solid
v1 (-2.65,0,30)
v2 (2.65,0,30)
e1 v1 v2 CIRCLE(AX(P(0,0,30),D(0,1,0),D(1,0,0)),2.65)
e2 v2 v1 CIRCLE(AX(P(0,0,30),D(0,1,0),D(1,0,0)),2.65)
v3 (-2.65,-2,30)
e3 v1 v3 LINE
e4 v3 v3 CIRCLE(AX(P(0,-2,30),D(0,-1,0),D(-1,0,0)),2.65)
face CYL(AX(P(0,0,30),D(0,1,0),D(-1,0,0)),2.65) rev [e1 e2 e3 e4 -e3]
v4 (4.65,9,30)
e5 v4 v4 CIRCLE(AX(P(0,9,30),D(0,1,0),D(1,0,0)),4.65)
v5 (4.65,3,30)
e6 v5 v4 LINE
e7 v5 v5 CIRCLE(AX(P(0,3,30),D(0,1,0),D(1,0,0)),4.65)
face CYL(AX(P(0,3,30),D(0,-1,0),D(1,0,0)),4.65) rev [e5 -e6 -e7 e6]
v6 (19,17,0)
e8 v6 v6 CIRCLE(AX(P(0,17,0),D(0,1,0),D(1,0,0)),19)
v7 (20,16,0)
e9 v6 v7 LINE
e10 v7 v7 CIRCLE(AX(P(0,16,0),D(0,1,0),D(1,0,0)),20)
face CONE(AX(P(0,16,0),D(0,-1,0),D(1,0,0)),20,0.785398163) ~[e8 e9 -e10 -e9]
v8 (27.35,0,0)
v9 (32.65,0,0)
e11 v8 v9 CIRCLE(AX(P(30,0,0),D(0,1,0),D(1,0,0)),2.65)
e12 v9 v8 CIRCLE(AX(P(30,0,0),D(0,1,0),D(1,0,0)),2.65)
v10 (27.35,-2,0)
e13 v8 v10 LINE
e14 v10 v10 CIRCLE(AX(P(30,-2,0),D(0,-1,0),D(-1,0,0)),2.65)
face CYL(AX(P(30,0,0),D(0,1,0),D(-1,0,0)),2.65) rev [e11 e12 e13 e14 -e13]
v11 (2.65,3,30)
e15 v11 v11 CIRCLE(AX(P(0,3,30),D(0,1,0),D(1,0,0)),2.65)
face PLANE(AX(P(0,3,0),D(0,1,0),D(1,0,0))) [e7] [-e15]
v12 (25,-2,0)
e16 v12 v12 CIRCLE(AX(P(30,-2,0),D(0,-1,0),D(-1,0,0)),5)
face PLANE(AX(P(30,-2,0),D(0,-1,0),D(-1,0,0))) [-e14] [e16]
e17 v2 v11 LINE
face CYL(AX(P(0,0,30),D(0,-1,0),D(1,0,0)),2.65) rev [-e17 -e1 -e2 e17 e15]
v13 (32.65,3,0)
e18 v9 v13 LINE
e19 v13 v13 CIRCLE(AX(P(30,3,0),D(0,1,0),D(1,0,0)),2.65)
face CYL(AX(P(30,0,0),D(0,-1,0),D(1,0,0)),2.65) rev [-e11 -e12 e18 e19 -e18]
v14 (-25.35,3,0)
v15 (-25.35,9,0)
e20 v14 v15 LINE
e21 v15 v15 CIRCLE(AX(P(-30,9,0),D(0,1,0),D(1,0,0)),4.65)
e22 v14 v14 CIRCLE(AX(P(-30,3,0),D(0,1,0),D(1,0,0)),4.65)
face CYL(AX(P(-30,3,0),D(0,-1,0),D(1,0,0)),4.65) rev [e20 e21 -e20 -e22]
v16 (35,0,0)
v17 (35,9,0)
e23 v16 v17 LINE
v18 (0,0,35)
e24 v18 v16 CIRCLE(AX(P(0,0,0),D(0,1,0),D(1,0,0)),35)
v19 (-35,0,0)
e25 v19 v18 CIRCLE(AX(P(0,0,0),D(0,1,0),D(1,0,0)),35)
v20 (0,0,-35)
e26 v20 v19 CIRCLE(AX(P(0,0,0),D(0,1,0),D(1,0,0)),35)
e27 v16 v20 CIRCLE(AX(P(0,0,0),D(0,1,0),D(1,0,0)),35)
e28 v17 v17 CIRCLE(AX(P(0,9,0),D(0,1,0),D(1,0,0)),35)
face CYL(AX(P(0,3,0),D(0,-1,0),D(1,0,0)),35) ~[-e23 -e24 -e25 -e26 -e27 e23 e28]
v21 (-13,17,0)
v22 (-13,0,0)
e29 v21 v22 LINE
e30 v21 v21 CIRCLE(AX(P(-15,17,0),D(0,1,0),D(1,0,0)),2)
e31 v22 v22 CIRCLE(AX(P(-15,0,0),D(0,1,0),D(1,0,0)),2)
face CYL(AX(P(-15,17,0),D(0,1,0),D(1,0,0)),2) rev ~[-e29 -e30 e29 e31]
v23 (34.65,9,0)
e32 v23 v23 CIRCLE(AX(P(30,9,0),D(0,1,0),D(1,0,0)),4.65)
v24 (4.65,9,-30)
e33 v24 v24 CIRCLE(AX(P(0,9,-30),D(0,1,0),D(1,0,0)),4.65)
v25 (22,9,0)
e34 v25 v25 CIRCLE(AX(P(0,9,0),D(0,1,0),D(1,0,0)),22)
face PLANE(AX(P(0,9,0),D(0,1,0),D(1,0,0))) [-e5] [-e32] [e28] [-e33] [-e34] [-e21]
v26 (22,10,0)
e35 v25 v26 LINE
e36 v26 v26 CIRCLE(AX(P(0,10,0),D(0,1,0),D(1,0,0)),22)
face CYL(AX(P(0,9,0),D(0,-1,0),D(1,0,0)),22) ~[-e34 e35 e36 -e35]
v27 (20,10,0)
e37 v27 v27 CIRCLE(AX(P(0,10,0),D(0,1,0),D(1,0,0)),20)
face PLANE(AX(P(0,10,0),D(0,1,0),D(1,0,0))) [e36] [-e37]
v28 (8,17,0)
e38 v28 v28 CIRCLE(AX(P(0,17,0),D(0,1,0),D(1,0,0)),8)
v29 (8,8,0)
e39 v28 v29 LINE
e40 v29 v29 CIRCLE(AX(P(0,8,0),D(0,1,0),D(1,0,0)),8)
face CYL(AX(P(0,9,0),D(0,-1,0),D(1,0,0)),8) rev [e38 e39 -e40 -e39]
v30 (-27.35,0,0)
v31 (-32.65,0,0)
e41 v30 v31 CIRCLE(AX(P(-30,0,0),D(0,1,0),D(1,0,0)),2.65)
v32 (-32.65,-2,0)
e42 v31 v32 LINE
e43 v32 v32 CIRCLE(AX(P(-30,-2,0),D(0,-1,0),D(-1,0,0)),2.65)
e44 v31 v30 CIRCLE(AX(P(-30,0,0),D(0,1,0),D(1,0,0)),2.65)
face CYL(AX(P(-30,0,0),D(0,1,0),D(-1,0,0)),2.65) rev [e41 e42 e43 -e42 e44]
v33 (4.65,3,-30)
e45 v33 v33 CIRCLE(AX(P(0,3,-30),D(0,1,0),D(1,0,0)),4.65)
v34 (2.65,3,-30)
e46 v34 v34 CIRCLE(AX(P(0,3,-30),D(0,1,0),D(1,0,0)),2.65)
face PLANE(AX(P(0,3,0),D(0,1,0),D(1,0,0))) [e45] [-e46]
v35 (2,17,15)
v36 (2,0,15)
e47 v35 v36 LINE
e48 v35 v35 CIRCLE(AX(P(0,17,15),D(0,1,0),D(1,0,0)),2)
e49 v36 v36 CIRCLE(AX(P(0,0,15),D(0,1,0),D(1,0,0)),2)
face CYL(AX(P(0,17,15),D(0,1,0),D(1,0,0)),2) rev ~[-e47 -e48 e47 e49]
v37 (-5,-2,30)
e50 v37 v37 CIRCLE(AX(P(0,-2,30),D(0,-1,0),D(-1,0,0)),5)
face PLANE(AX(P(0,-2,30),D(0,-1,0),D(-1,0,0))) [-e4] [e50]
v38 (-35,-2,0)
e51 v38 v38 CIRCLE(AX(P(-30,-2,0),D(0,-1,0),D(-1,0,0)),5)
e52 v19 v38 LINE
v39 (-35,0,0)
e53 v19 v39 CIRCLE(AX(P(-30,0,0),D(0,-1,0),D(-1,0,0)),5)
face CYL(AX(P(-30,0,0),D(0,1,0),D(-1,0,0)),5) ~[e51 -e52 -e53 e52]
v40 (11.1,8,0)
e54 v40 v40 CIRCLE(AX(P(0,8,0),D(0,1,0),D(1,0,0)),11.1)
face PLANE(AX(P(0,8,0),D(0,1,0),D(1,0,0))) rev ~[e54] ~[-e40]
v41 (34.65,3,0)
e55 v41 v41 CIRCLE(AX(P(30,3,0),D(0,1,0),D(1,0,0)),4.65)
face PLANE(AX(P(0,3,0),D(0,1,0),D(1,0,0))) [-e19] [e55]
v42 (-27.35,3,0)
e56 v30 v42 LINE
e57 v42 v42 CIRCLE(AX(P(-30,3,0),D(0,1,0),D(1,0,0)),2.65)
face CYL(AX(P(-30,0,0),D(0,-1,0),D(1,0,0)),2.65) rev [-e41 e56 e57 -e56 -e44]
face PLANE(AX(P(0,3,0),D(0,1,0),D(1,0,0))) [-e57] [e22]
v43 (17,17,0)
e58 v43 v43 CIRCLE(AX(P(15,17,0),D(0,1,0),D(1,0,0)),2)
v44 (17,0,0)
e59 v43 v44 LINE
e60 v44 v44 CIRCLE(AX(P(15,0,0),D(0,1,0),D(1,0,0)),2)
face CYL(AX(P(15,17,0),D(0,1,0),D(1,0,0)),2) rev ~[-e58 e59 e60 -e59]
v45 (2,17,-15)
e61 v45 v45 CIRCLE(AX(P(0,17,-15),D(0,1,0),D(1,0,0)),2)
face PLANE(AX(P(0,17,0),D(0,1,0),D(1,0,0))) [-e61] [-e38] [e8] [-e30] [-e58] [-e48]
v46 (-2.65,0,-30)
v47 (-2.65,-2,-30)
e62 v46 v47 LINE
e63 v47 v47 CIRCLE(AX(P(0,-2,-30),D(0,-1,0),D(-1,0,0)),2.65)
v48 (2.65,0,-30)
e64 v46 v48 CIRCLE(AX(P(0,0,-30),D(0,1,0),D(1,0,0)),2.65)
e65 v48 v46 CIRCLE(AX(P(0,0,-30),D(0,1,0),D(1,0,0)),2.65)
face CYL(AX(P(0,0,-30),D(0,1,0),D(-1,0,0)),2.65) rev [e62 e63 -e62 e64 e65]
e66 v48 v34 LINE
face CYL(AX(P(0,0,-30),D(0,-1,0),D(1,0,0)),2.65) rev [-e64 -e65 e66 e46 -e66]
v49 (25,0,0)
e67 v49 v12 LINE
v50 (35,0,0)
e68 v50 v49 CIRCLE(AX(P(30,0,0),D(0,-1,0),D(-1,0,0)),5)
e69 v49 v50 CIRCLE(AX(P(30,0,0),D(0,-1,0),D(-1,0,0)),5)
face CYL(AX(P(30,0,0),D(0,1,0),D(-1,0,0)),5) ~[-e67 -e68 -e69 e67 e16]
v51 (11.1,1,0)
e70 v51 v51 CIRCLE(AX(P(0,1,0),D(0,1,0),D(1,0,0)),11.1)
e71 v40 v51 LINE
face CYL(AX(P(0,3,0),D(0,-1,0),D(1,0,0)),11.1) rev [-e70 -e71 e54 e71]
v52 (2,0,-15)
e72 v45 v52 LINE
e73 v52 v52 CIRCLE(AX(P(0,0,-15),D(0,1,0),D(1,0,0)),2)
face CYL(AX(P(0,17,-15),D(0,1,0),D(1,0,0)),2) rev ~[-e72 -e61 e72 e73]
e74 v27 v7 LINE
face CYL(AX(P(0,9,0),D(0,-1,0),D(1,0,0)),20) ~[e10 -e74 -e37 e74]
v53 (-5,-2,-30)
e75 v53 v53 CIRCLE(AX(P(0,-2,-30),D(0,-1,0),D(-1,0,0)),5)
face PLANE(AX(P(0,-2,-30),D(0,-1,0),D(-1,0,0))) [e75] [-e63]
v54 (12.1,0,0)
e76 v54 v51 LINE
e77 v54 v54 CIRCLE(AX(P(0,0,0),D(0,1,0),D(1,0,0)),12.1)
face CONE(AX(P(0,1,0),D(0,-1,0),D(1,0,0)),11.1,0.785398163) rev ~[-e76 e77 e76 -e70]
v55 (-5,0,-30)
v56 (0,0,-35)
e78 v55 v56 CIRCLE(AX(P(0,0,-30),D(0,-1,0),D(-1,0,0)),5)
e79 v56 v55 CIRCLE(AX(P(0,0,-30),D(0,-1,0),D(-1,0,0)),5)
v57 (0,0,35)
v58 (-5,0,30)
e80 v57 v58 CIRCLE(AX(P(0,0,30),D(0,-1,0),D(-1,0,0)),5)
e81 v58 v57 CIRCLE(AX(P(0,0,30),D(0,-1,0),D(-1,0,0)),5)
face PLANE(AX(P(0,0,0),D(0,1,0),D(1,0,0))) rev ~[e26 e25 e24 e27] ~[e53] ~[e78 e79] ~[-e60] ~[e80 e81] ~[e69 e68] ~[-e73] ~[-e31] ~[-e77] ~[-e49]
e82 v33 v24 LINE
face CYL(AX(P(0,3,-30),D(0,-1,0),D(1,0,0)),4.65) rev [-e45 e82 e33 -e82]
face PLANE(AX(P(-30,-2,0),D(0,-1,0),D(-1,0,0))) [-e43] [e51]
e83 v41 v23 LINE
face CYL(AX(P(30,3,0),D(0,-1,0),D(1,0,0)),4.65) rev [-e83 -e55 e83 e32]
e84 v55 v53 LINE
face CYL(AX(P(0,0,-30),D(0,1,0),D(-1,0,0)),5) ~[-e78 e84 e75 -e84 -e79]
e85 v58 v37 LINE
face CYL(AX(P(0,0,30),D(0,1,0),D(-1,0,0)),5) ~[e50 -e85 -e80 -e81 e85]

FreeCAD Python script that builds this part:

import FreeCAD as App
import Part
import Sketcher

V = App.Vector
Q = App.Units.Quantity


def edges_at(feature, points):
    """Names of the edges that pass closest to the given points."""
    edges = feature.Shape.Edges
    near = lambda p: min(range(len(edges)), key=lambda i: edges[i].distToShape(Part.Vertex(*p))[0])
    return sorted({f"Edge{near(p) + 1}" for p in points})

doc = App.newDocument("Part")
body = doc.addObject("PartDesign::Body", "Body")

sketch1 = body.newObject("Sketcher::SketchObject", "Sketch")
sketch1.AttachmentSupport = (doc.getObject("XZ_Plane"), [""])
sketch1.MapMode = "FlatFace"
sketch1.addGeometry(Part.Circle(V(0, 0, 0), V(0, 0, 1), 35), False)
sketch1.addGeometry(Part.Circle(V(0, 30, 0), V(0, 0, 1), 2.6), False)
sketch1.addGeometry(Part.Circle(V(-30, 0, 0), V(0, 0, 1), 2.6), False)
sketch1.addGeometry(Part.Circle(V(0, 0, 0), V(0, 0, 1), 11.1), False)
sketch1.addGeometry(Part.Circle(V(30, 0, 0), V(0, 0, 1), 2.6), False)
sketch1.addGeometry(Part.Circle(V(0, -30, 0), V(0, 0, 1), 2.6), False)
sketch1.addConstraint(Sketcher.Constraint("Coincident", 0, 3, -1, 1))
sketch1.addConstraint(Sketcher.Constraint("Coincident", 3, 3, -1, 1))
sketch1.addConstraint(Sketcher.Constraint("Equal", 1, 2))
sketch1.addConstraint(Sketcher.Constraint("Equal", 2, 4))
sketch1.addConstraint(Sketcher.Constraint("Equal", 4, 5))
sketch1.addConstraint(Sketcher.Constraint("Symmetric", 2, 3, 4, 3, -1, 1))
sketch1.addConstraint(Sketcher.Constraint("Symmetric", 1, 3, 5, 3, -1, 1))
sketch1.addConstraint(Sketcher.Constraint("PointOnObject", 1, 3, -2))
sketch1.addConstraint(Sketcher.Constraint("PointOnObject", 2, 3, -1))
sketch1.addConstraint(Sketcher.Constraint("Diameter", 0, Q("70 mm")))
sketch1.addConstraint(Sketcher.Constraint("Diameter", 1, Q("5.3 mm")))
sketch1.addConstraint(Sketcher.Constraint("Diameter", 3, Q("22.2 mm")))
sketch1.addConstraint(Sketcher.Constraint("DistanceY", -1, 1, 1, 3, Q("30 mm")))
sketch1.addConstraint(Sketcher.Constraint("DistanceX", 2, 3, -1, 1, Q("30 mm")))
pad1 = body.newObject("PartDesign::Pad", "Pad")
pad1.Profile = sketch1
pad1.Length = 3
pad1.Reversed = True

sketch2 = body.newObject("Sketcher::SketchObject", "Sketch001")
sketch2.AttachmentSupport = (doc.getObject("XZ_Plane"), [""])
sketch2.MapMode = "FlatFace"
sketch2.AttachmentOffset = App.Placement(V(0, 0, -3), App.Rotation())
sketch2.addGeometry(Part.Circle(V(0, 0, 0), V(0, 0, 1), 35), False)
sketch2.addGeometry(Part.Circle(V(0, 30, 0), V(0, 0, 1), 4.7), False)
sketch2.addGeometry(Part.Circle(V(-30, 0, 0), V(0, 0, 1), 4.7), False)
sketch2.addGeometry(Part.Circle(V(0, 0, 0), V(0, 0, 1), 11.1), False)
sketch2.addGeometry(Part.Circle(V(30, 0, 0), V(0, 0, 1), 4.7), False)
sketch2.addGeometry(Part.Circle(V(0, -30, 0), V(0, 0, 1), 4.7), False)
sketch2.addConstraint(Sketcher.Constraint("Coincident", 0, 3, -1, 1))
sketch2.addConstraint(Sketcher.Constraint("Coincident", 3, 3, -1, 1))
sketch2.addConstraint(Sketcher.Constraint("Equal", 1, 2))
sketch2.addConstraint(Sketcher.Constraint("Equal", 2, 4))
sketch2.addConstraint(Sketcher.Constraint("Equal", 4, 5))
sketch2.addConstraint(Sketcher.Constraint("Symmetric", 2, 3, 4, 3, -1, 1))
sketch2.addConstraint(Sketcher.Constraint("Symmetric", 1, 3, 5, 3, -1, 1))
sketch2.addConstraint(Sketcher.Constraint("PointOnObject", 1, 3, -2))
sketch2.addConstraint(Sketcher.Constraint("PointOnObject", 2, 3, -1))
sketch2.addConstraint(Sketcher.Constraint("Diameter", 0, Q("70 mm")))
sketch2.addConstraint(Sketcher.Constraint("Diameter", 1, Q("9.3 mm")))
sketch2.addConstraint(Sketcher.Constraint("Diameter", 3, Q("22.2 mm")))
sketch2.addConstraint(Sketcher.Constraint("DistanceY", -1, 1, 1, 3, Q("30 mm")))
sketch2.addConstraint(Sketcher.Constraint("DistanceX", 2, 3, -1, 1, Q("30 mm")))
pad2 = body.newObject("PartDesign::Pad", "Pad001")
pad2.Profile = sketch2
pad2.Length = 6
pad2.Reversed = True

sketch3 = body.newObject("Sketcher::SketchObject", "Sketch002")
sketch3.AttachmentSupport = (doc.getObject("XZ_Plane"), [""])
sketch3.MapMode = "FlatFace"
sketch3.AttachmentOffset = App.Placement(V(0, 0, -9), App.Rotation())
sketch3.addGeometry(Part.Circle(V(0, 0, 0), V(0, 0, 1), 11), False)
sketch3.addGeometry(Part.Circle(V(0, 0, 0), V(0, 0, 1), 8), False)
sketch3.addConstraint(Sketcher.Constraint("Coincident", 0, 3, -1, 1))
sketch3.addConstraint(Sketcher.Constraint("Coincident", 1, 3, -1, 1))
sketch3.addConstraint(Sketcher.Constraint("Diameter", 1, Q("16 mm")))
sketch3.addConstraint(Sketcher.Constraint("Diameter", 0, Q("22.2 mm")))
pad3 = body.newObject("PartDesign::Pad", "Pad002")
pad3.Profile = sketch3
pad3.Length = 1

sketch4 = body.newObject("Sketcher::SketchObject", "Sketch003")
sketch4.AttachmentSupport = (doc.getObject("XZ_Plane"), [""])
sketch4.MapMode = "FlatFace"
sketch4.AttachmentOffset = App.Placement(V(0, 0, -9), App.Rotation())
sketch4.addGeometry(Part.Circle(V(0, 0, 0), V(0, 0, 1), 20), False)
sketch4.addGeometry(Part.Circle(V(0, 0, 0), V(0, 0, 1), 8), False)
sketch4.addConstraint(Sketcher.Constraint("Coincident", 0, 3, -1, 1))
sketch4.addConstraint(Sketcher.Constraint("Coincident", 1, 3, -1, 1))
sketch4.addConstraint(Sketcher.Constraint("Diameter", 0, Q("40 mm")))
sketch4.addConstraint(Sketcher.Constraint("Diameter", 1, Q("16 mm")))
pad4 = body.newObject("PartDesign::Pad", "Pad003")
pad4.Profile = sketch4
pad4.Length = 8
pad4.Reversed = True

sketch5 = body.newObject("Sketcher::SketchObject", "Sketch004")
sketch5.AttachmentSupport = (doc.getObject("XZ_Plane"), [""])
sketch5.MapMode = "FlatFace"
sketch5.AttachmentOffset = App.Placement(V(0, 0, -9), App.Rotation())
sketch5.addGeometry(Part.Circle(V(0, 0, 0), V(0, 0, 1), 22), False)
sketch5.addGeometry(Part.Circle(V(0, 0, 0), V(0, 0, 1), 20), False)
sketch5.addConstraint(Sketcher.Constraint("Coincident", 0, 3, -1, 1))
sketch5.addConstraint(Sketcher.Constraint("Coincident", 1, 3, -1, 1))
sketch5.addConstraint(Sketcher.Constraint("Diameter", 0, Q("44 mm")))
sketch5.addConstraint(Sketcher.Constraint("Diameter", 1, Q("40 mm")))
pad5 = body.newObject("PartDesign::Pad", "Pad004")
pad5.Profile = sketch5
pad5.Length = 1
pad5.Reversed = True

sketch6 = body.newObject("Sketcher::SketchObject", "Sketch005")
sketch6.AttachmentSupport = (doc.getObject("XZ_Plane"), [""])
sketch6.MapMode = "FlatFace"
sketch6.addGeometry(Part.Circle(V(-30, 0, 0), V(0, 0, 1), 5), False)
sketch6.addGeometry(Part.Circle(V(-30, 0, 0), V(0, 0, 1), 2.6), False)
sketch6.addGeometry(Part.Circle(V(0, 30, 0), V(0, 0, 1), 5), False)
sketch6.addGeometry(Part.Circle(V(0, 30, 0), V(0, 0, 1), 2.6), False)
sketch6.addGeometry(Part.Circle(V(30, 0, 0), V(0, 0, 1), 5), False)
sketch6.addGeometry(Part.Circle(V(30, 0, 0), V(0, 0, 1), 2.6), False)
sketch6.addGeometry(Part.Circle(V(0, -30, 0), V(0, 0, 1), 5), False)
sketch6.addGeometry(Part.Circle(V(0, -30, 0), V(0, 0, 1), 2.6), False)
sketch6.addConstraint(Sketcher.Constraint("Coincident", 1, 3, 0, 3))
sketch6.addConstraint(Sketcher.Constraint("Coincident", 3, 3, 2, 3))
sketch6.addConstraint(Sketcher.Constraint("Coincident", 5, 3, 4, 3))
sketch6.addConstraint(Sketcher.Constraint("Coincident", 7, 3, 6, 3))
sketch6.addConstraint(Sketcher.Constraint("Equal", 0, 2))
sketch6.addConstraint(Sketcher.Constraint("Equal", 1, 3))
sketch6.addConstraint(Sketcher.Constraint("Equal", 2, 4))
sketch6.addConstraint(Sketcher.Constraint("Equal", 3, 5))
sketch6.addConstraint(Sketcher.Constraint("Equal", 4, 6))
sketch6.addConstraint(Sketcher.Constraint("Equal", 5, 7))
sketch6.addConstraint(Sketcher.Constraint("Symmetric", 0, 3, 4, 3, -1, 1))
sketch6.addConstraint(Sketcher.Constraint("Symmetric", 2, 3, 6, 3, -1, 1))
sketch6.addConstraint(Sketcher.Constraint("PointOnObject", 0, 3, -1))
sketch6.addConstraint(Sketcher.Constraint("PointOnObject", 2, 3, -2))
sketch6.addConstraint(Sketcher.Constraint("Diameter", 0, Q("10 mm")))
sketch6.addConstraint(Sketcher.Constraint("Diameter", 1, Q("5.3 mm")))
sketch6.addConstraint(Sketcher.Constraint("DistanceX", 0, 3, -1, 1, Q("30 mm")))
sketch6.addConstraint(Sketcher.Constraint("DistanceY", -1, 1, 2, 3, Q("30 mm")))
pad6 = body.newObject("PartDesign::Pad", "Pad005")
pad6.Profile = sketch6
pad6.Length = 2

sketch7 = body.newObject("Sketcher::SketchObject", "Sketch006")
sketch7.AttachmentSupport = (doc.getObject("XZ_Plane"), [""])
sketch7.MapMode = "FlatFace"
sketch7.AttachmentOffset = App.Placement(V(0, 0, -17), App.Rotation())
sketch7.addGeometry(Part.Circle(V(0, -15, 0), V(0, 0, 1), 2), False)
sketch7.addGeometry(Part.Circle(V(15, 0, 0), V(0, 0, 1), 2), False)
sketch7.addGeometry(Part.Circle(V(0, 15, 0), V(0, 0, 1), 2), False)
sketch7.addGeometry(Part.Circle(V(-15, 0, 0), V(0, 0, 1), 2), False)
sketch7.addConstraint(Sketcher.Constraint("Equal", 0, 1))
sketch7.addConstraint(Sketcher.Constraint("Equal", 1, 2))
sketch7.addConstraint(Sketcher.Constraint("Equal", 2, 3))
sketch7.addConstraint(Sketcher.Constraint("Symmetric", 0, 3, 2, 3, -1, 1))
sketch7.addConstraint(Sketcher.Constraint("Symmetric", 1, 3, 3, 3, -1, 1))
sketch7.addConstraint(Sketcher.Constraint("PointOnObject", 0, 3, -2))
sketch7.addConstraint(Sketcher.Constraint("PointOnObject", 1, 3, -1))
sketch7.addConstraint(Sketcher.Constraint("Diameter", 0, Q("4 mm")))
sketch7.addConstraint(Sketcher.Constraint("DistanceY", 0, 3, -1, 1, Q("15 mm")))
sketch7.addConstraint(Sketcher.Constraint("DistanceX", -1, 1, 1, 3, Q("15 mm")))
pocket1 = body.newObject("PartDesign::Pocket", "Pocket")
pocket1.Profile = sketch7
pocket1.Type = "ThroughAll"
pocket1.Reversed = True
doc.recompute()

chamfer = body.newObject("PartDesign::Chamfer", "Chamfer")
chamfer.Base = (pocket1, edges_at(pocket1, [(-11.1, 0, 0), (-20, 17, 0)]))
chamfer.Size = 1

doc.recompute()
